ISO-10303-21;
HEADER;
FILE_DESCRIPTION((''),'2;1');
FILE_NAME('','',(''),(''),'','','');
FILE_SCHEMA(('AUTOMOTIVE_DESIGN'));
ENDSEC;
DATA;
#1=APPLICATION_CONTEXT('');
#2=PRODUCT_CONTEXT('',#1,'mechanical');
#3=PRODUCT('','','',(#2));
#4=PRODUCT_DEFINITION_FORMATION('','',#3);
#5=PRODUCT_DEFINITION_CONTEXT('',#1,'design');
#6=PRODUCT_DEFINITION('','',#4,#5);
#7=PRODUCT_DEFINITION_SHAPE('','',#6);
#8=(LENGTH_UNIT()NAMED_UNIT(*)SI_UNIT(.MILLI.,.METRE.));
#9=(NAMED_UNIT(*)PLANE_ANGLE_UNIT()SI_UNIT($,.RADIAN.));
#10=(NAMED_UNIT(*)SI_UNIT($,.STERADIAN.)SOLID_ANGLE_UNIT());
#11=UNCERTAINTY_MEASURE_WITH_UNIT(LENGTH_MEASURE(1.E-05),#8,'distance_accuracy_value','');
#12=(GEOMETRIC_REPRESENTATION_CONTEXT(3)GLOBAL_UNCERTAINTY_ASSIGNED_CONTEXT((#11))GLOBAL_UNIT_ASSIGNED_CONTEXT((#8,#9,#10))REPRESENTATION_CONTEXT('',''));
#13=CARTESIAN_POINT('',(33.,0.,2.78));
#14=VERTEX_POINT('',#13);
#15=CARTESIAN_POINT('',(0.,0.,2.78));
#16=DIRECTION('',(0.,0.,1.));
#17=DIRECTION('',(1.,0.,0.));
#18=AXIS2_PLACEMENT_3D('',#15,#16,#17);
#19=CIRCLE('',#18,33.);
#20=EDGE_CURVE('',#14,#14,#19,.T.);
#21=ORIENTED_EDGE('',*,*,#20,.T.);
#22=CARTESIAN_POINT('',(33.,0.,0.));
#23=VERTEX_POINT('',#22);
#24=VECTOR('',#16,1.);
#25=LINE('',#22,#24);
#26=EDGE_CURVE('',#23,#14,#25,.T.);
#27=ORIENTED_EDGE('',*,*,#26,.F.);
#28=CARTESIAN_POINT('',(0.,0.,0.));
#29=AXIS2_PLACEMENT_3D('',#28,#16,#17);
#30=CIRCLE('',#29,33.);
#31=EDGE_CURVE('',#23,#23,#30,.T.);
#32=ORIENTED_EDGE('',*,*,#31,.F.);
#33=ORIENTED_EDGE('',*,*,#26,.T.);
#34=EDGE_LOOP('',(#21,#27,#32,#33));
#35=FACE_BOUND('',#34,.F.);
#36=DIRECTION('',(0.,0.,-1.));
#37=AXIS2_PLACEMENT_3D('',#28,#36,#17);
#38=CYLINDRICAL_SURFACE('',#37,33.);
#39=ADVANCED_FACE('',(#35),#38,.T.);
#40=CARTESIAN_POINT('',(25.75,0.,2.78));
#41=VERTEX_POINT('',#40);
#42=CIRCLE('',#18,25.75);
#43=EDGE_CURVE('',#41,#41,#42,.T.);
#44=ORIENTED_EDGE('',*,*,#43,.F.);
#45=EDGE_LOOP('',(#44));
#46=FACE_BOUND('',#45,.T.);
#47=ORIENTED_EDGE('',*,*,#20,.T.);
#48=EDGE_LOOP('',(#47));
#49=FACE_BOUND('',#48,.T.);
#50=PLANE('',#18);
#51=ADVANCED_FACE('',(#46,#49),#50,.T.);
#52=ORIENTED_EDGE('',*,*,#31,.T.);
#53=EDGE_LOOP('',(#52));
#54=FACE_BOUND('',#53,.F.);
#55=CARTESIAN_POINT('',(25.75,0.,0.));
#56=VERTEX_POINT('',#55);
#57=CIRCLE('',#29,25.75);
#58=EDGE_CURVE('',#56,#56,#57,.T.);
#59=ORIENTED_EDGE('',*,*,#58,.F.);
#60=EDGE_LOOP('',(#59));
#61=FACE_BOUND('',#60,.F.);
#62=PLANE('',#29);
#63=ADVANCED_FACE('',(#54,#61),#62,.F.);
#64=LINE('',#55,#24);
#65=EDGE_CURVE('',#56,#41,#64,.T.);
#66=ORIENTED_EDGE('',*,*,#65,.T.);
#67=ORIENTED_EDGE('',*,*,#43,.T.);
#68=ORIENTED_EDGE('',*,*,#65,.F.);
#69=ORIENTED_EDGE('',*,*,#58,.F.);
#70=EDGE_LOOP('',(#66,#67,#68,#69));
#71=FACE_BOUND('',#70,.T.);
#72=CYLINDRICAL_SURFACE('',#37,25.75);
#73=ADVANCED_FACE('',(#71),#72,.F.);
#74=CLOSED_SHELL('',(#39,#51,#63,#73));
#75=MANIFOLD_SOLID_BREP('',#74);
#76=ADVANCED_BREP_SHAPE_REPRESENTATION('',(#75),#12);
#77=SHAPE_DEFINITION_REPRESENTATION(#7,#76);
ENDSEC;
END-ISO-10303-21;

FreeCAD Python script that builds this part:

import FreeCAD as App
import Part
import Sketcher
from FreeCAD import Vector
Q = App.Units.Quantity

doc = App.newDocument("Part")
body = doc.addObject("PartDesign::Body", "Body")

# Sketch on XY plane
sketch1 = body.newObject("Sketcher::SketchObject", "Sketch")
sketch1.AttachmentSupport = (doc.getObject("XY_Plane"), [""])
sketch1.MapMode = "FlatFace"
sketch1.addGeometry(Part.Circle(Vector(0, 0, 0), Vector(0, 0, 1), 33), False)
sketch1.addGeometry(Part.Circle(Vector(0, 0, 0), Vector(0, 0, 1), 26), False)
sketch1.addConstraint(Sketcher.Constraint("Coincident", 0, 3, -1, 1))
sketch1.addConstraint(Sketcher.Constraint("Coincident", 1, 3, -1, 1))
sketch1.addConstraint(Sketcher.Constraint("Diameter", 0, Q("66 mm")))
sketch1.addConstraint(Sketcher.Constraint("Diameter", 1, Q("51.5 mm")))
pad1 = body.newObject("PartDesign::Pad", "Pad")
pad1.Profile = sketch1
pad1.Length = 2.78

doc.recompute()
